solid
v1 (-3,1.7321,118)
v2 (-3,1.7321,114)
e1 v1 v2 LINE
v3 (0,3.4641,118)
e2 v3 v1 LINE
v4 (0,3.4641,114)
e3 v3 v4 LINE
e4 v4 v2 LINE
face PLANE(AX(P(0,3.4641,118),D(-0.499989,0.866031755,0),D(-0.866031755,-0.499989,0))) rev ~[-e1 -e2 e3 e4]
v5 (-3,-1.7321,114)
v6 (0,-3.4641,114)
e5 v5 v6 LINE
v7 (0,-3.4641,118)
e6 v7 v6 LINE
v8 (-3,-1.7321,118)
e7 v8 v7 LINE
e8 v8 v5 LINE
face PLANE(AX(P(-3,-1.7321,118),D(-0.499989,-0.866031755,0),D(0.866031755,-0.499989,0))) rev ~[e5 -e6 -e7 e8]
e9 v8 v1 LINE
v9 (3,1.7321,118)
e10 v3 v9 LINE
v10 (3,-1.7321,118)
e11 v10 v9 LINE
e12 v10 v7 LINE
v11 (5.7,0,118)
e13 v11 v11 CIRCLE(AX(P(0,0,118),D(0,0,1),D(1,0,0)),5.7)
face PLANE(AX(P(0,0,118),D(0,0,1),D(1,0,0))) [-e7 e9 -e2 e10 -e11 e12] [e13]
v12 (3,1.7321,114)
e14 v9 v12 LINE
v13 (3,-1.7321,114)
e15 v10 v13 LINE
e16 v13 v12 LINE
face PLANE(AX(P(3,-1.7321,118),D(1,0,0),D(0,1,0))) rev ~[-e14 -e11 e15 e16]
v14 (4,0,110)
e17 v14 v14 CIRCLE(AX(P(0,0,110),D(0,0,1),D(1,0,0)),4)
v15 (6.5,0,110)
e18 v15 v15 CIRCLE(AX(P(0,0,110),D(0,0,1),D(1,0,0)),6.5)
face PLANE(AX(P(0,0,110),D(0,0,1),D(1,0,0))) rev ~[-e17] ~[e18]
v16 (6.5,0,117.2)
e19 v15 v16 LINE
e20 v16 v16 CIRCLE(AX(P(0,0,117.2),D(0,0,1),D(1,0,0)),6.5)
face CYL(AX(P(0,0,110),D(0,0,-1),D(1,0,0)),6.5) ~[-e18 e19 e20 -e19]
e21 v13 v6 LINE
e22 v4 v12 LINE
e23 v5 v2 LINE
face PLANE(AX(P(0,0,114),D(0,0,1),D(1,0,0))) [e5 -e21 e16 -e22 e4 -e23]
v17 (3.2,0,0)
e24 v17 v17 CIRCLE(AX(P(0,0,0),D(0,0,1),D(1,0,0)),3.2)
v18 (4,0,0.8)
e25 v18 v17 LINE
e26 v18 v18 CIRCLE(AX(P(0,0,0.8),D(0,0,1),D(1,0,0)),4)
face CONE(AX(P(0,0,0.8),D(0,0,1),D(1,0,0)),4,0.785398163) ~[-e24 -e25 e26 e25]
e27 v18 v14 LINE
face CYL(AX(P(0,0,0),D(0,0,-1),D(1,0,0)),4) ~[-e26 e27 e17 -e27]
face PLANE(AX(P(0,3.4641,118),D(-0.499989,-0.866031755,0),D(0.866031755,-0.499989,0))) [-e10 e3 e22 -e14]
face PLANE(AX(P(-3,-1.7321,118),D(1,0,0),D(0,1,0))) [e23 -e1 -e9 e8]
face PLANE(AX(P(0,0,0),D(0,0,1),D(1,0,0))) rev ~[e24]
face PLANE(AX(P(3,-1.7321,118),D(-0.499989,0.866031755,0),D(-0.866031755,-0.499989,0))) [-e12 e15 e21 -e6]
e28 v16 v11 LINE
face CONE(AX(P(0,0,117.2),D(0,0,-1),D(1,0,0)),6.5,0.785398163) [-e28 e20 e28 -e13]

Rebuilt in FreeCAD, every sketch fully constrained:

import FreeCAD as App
import Part
import Sketcher

V = App.Vector
Q = App.Units.Quantity


def edges_at(feature, points):
    """Names of the edges that pass closest to the given points."""
    edges = feature.Shape.Edges
    near = lambda p: min(range(len(edges)), key=lambda i: edges[i].distToShape(Part.Vertex(*p))[0])
    return sorted({f"Edge{near(p) + 1}" for p in points})

doc = App.newDocument("Part")
params = doc.addObject("Spreadsheet::Sheet", "Params")
for row, (alias, value) in enumerate([
    ("sketch1_diameter", "8 mm"),
    ("pad1_length", "110 mm"),
    ("sketch2_diameter", "13 mm"),
    ("pad2_length", "8 mm"),
    ("pocket1_length", "4 mm"),
    ("chamfer_size", "0.8 mm"),
], start=1):
    params.set(f"A{row}", alias)
    params.set(f"B{row}", "=" + value)
    params.setAlias(f"B{row}", alias)

body = doc.addObject("PartDesign::Body", "Body")

# Sketch on XY plane
sketch1 = doc.addObject("Sketcher::SketchObject", "Sketch")
body.addObject(sketch1)
sketch1.AttachmentSupport = (doc.XY_Plane, [""])
sketch1.MapMode = "FlatFace"
sketch1.addGeometry(Part.Circle(V(0, 0, 0), V(0, 0, 1), 4), False)
sketch1.addConstraint(Sketcher.Constraint("Coincident", 0, 3, -1, 1))
sketch1.addConstraint(Sketcher.Constraint("Diameter", 0, 8.0))
sketch1.setExpression("Constraints[1]", "Params.sketch1_diameter")
pad1 = doc.addObject("PartDesign::Pad", "Pad")
body.addObject(pad1)
pad1.Profile = sketch1
pad1.setExpression("Length", "Params.pad1_length")

# Sketch on XY plane
sketch2 = doc.addObject("Sketcher::SketchObject", "Sketch001")
body.addObject(sketch2)
sketch2.AttachmentSupport = (doc.XY_Plane, [""])
sketch2.MapMode = "FlatFace"
sketch2.AttachmentOffset = App.Placement(V(0, 0, 110), App.Rotation())
sketch2.addGeometry(Part.Circle(V(0, 0, 0), V(0, 0, 1), 6.5), False)
sketch2.addConstraint(Sketcher.Constraint("Coincident", 0, 3, -1, 1))
sketch2.addConstraint(Sketcher.Constraint("Diameter", 0, 13.0))
sketch2.setExpression("Constraints[1]", "Params.sketch2_diameter")
pad2 = doc.addObject("PartDesign::Pad", "Pad001")
body.addObject(pad2)
pad2.Profile = sketch2
pad2.setExpression("Length", "Params.pad2_length")

# Sketch on XY plane
sketch3 = doc.addObject("Sketcher::SketchObject", "Sketch002")
body.addObject(sketch3)
sketch3.AttachmentSupport = (doc.XY_Plane, [""])
sketch3.MapMode = "FlatFace"
sketch3.AttachmentOffset = App.Placement(V(0, 0, 118), App.Rotation())
sketch3.addGeometry(Part.LineSegment(V(3, 1.7321, 0), V(0, 3.4641, 0)), False)
sketch3.addGeometry(Part.LineSegment(V(0, 3.4641, 0), V(-3, 1.7321, 0)), False)
sketch3.addGeometry(Part.LineSegment(V(-3, 1.7321, 0), V(-3, -1.7321, 0)), False)
sketch3.addGeometry(Part.LineSegment(V(-3, -1.7321, 0), V(0, -3.4641, 0)), False)
sketch3.addGeometry(Part.LineSegment(V(0, -3.4641, 0), V(3, -1.7321, 0)), False)
sketch3.addGeometry(Part.LineSegment(V(3, -1.7321, 0), V(3, 1.7321, 0)), False)
sketch3.addConstraint(Sketcher.Constraint("Coincident", 0, 2, 1, 1))
sketch3.addConstraint(Sketcher.Constraint("Coincident", 1, 2, 2, 1))
sketch3.addConstraint(Sketcher.Constraint("Coincident", 2, 2, 3, 1))
sketch3.addConstraint(Sketcher.Constraint("Coincident", 3, 2, 4, 1))
sketch3.addConstraint(Sketcher.Constraint("Coincident", 4, 2, 5, 1))
sketch3.addConstraint(Sketcher.Constraint("Coincident", 5, 2, 0, 1))
sketch3.addConstraint(Sketcher.Constraint("Vertical", 2))
sketch3.addConstraint(Sketcher.Constraint("Vertical", 5))
sketch3.addConstraint(Sketcher.Constraint("Symmetric", 0, 2, 3, 2, -1, 1))
sketch3.addConstraint(Sketcher.Constraint("Symmetric", 1, 2, 4, 2, -1, 1))
sketch3.addConstraint(Sketcher.Constraint("PointOnObject", 0, 2, -2))
sketch3.addConstraint(Sketcher.Constraint("Parallel", 0, 3))
sketch3.addConstraint(Sketcher.Constraint("Horizontal", 2, 2, 4, 2))
sketch3.addConstraint(Sketcher.Constraint("DistanceX", 2, 2, 4, 2, 6.0))
sketch3.addConstraint(Sketcher.Constraint("Angle", 0, Q("150.0007 deg")))
sketch3.addConstraint(Sketcher.Constraint("DistanceY", 2, 2, 2, 1, 3.4642))
pocket1 = doc.addObject("PartDesign::Pocket", "Pocket")
body.addObject(pocket1)
pocket1.Profile = sketch3
pocket1.setExpression("Length", "Params.pocket1_length")
doc.recompute()

chamfer = doc.addObject("PartDesign::Chamfer", "Chamfer")
body.addObject(chamfer)
chamfer.Base = (pocket1, edges_at(pocket1, [(-6.5, 0, 118), (-4, 0, 0)]))
chamfer.setExpression("Size", "Params.chamfer_size")

doc.recompute()
